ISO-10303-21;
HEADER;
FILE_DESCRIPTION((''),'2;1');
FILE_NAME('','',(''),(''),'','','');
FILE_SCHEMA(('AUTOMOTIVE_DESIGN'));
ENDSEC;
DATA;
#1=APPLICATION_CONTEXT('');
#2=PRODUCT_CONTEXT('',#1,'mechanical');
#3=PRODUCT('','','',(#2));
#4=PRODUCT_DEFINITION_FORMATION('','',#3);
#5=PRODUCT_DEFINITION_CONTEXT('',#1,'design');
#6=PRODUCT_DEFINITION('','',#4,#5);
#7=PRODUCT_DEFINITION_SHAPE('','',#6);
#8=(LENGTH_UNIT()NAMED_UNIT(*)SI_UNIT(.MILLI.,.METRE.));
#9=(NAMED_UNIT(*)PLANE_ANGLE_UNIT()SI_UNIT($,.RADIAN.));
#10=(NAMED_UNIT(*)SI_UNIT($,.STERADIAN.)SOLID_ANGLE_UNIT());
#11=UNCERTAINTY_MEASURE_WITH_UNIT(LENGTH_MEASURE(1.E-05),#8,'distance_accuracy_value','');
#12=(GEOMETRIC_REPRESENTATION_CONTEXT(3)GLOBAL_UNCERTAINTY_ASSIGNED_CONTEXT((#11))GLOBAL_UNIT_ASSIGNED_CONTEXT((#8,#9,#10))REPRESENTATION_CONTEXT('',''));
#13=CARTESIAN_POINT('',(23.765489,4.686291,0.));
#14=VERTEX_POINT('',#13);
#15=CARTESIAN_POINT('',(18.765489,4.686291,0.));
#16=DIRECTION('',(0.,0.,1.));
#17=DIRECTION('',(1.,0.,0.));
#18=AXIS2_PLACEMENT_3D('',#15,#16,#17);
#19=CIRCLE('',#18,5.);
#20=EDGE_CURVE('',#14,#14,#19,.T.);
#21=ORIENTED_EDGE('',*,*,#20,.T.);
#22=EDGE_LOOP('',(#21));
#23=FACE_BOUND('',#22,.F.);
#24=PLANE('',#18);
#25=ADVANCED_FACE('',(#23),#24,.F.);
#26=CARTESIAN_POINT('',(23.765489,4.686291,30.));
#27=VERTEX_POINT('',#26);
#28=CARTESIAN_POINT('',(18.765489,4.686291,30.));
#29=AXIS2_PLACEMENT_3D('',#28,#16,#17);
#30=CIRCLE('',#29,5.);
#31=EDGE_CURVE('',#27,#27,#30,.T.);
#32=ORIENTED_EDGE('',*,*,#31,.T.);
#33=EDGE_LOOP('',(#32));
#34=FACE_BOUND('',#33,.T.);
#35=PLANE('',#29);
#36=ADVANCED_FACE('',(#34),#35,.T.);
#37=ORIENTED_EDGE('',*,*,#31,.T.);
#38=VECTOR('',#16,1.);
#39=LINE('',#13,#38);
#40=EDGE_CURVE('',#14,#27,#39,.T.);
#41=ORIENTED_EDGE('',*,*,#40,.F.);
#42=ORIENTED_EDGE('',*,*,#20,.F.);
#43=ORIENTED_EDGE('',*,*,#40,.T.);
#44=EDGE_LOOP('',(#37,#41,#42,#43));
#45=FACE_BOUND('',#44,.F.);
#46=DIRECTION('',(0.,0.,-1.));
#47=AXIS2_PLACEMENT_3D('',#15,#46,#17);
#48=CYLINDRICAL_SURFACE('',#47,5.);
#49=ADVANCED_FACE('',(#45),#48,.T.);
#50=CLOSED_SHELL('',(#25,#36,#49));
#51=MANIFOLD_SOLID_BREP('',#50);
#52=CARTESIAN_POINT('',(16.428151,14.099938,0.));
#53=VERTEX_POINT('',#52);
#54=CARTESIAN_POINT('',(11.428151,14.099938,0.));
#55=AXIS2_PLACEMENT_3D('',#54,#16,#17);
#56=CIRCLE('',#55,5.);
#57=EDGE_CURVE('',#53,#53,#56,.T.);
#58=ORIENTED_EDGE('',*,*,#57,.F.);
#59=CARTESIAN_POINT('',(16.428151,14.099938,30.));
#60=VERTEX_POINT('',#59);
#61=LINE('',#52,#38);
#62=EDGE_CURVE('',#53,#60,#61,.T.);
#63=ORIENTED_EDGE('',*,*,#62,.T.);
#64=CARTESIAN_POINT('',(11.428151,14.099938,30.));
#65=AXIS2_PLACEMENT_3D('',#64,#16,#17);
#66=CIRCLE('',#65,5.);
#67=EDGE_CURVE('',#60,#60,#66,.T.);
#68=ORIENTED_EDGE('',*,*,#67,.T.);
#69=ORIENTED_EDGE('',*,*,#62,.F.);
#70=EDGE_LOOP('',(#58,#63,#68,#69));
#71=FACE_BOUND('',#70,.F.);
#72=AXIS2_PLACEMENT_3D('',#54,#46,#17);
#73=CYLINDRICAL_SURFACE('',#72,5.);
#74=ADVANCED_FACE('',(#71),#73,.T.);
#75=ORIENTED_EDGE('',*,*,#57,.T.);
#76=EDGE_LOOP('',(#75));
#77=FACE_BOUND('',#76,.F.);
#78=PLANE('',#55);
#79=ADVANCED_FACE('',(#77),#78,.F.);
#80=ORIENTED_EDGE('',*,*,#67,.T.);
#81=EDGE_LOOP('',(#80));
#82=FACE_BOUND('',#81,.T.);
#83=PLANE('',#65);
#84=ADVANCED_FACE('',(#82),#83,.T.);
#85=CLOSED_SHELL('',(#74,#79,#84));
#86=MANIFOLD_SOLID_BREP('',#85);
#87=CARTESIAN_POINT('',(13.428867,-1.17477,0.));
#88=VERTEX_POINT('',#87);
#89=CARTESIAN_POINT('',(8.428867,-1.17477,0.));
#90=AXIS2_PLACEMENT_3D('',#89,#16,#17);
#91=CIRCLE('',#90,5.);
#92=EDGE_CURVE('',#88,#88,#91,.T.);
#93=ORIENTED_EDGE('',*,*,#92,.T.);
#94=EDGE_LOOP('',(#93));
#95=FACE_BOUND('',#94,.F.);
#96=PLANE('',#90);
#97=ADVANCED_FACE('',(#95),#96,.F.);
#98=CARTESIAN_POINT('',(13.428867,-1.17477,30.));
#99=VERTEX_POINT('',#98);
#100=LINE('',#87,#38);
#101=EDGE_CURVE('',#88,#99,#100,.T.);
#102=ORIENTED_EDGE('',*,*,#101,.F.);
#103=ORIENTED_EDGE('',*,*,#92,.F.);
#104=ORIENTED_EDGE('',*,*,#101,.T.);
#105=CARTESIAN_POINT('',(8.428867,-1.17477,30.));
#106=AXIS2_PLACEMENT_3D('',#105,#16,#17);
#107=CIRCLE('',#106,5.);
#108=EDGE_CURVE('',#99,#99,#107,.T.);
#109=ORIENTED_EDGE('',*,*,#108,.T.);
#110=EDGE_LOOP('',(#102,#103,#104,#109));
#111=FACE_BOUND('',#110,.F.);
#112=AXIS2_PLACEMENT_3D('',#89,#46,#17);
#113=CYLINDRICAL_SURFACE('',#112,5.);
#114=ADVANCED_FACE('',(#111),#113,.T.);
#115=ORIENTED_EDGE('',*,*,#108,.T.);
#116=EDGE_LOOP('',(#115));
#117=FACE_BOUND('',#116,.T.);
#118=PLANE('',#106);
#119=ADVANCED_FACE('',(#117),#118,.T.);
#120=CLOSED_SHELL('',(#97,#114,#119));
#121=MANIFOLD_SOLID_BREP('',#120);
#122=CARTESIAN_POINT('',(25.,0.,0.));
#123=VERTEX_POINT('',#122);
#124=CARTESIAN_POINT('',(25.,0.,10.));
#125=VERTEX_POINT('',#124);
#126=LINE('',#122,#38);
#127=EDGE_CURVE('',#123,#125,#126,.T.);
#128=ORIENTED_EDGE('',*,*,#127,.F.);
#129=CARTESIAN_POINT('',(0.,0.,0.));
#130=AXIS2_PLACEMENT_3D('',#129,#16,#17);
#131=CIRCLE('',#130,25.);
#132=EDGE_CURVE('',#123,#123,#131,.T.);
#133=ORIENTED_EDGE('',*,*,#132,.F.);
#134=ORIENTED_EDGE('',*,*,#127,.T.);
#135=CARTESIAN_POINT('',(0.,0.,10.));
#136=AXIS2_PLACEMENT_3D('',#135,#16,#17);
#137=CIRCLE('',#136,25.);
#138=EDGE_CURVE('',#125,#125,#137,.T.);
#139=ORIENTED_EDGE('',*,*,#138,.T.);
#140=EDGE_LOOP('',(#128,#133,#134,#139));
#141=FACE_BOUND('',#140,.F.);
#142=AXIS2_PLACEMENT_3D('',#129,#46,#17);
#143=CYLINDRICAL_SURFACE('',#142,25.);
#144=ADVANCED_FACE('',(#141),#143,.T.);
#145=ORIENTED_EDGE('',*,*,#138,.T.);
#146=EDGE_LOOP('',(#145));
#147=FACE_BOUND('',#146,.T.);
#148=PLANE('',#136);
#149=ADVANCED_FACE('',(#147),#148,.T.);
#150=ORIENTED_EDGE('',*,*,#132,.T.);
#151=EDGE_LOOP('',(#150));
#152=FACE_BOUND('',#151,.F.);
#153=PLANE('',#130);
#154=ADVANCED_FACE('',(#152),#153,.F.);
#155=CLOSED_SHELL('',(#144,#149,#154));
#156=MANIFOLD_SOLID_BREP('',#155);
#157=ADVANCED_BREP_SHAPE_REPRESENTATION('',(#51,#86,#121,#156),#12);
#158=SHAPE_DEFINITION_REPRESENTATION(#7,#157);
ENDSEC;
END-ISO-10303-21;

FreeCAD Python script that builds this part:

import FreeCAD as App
import Part
import Sketcher
Q = App.Units.Quantity

doc = App.newDocument("Part")
body = doc.addObject("PartDesign::Body", "Body")

sketch1 = body.newObject("Sketcher::SketchObject", "Sketch")
sketch1.AttachmentSupport = (doc.getObject("XY_Plane"), [""])
sketch1.MapMode = "FlatFace"
sketch1.addGeometry(Part.Circle(App.Vector(0, 0, 0), App.Vector(0, 0, 1), 25), False)
sketch1.addConstraint([
    Sketcher.Constraint("Coincident", 0, 3, -1, 1),
    Sketcher.Constraint("Diameter", 0, Q("50 mm")),
])
pad1 = body.newObject("PartDesign::Pad", "Pad")
pad1.Profile = sketch1
pad1.Length = 10
body2 = doc.addObject("PartDesign::Body", "Body001")
body2.AllowCompound = True

sketch2 = body2.newObject("Sketcher::SketchObject", "Sketch001")
sketch2.AttachmentSupport = (doc.getObject("XY_Plane001"), [""])
sketch2.MapMode = "FlatFace"
sketch2.addGeometry([
    Part.Circle(App.Vector(19, 5, 0), App.Vector(0, 0, 1), 5),
    Part.Circle(App.Vector(11, 14, 0), App.Vector(0, 0, 1), 5),
    Part.Circle(App.Vector(8, -1, 0), App.Vector(0, 0, 1), 5),
], False)
sketch2.addConstraint([
    Sketcher.Constraint("Equal", 0, 1),
    Sketcher.Constraint("Equal", 1, 2),
    Sketcher.Constraint("Diameter", 0, Q("10 mm")),
    Sketcher.Constraint("DistanceX", -1, 1, 0, 3, Q("18.765489 mm")),
    Sketcher.Constraint("DistanceY", -1, 1, 0, 3, Q("4.686291 mm")),
    Sketcher.Constraint("DistanceX", -1, 1, 1, 3, Q("11.428151 mm")),
    Sketcher.Constraint("DistanceY", 2, 3, -1, 1, Q("1.17477 mm")),
    Sketcher.Constraint("DistanceX", 2, 3, 0, 3, Q("10.336622 mm")),
    Sketcher.Constraint("DistanceY", -1, 1, 1, 3, Q("14.099938 mm")),
])
pad2 = body2.newObject("PartDesign::Pad", "Pad001")
pad2.Profile = sketch2
pad2.Length = 30

doc.recompute()
